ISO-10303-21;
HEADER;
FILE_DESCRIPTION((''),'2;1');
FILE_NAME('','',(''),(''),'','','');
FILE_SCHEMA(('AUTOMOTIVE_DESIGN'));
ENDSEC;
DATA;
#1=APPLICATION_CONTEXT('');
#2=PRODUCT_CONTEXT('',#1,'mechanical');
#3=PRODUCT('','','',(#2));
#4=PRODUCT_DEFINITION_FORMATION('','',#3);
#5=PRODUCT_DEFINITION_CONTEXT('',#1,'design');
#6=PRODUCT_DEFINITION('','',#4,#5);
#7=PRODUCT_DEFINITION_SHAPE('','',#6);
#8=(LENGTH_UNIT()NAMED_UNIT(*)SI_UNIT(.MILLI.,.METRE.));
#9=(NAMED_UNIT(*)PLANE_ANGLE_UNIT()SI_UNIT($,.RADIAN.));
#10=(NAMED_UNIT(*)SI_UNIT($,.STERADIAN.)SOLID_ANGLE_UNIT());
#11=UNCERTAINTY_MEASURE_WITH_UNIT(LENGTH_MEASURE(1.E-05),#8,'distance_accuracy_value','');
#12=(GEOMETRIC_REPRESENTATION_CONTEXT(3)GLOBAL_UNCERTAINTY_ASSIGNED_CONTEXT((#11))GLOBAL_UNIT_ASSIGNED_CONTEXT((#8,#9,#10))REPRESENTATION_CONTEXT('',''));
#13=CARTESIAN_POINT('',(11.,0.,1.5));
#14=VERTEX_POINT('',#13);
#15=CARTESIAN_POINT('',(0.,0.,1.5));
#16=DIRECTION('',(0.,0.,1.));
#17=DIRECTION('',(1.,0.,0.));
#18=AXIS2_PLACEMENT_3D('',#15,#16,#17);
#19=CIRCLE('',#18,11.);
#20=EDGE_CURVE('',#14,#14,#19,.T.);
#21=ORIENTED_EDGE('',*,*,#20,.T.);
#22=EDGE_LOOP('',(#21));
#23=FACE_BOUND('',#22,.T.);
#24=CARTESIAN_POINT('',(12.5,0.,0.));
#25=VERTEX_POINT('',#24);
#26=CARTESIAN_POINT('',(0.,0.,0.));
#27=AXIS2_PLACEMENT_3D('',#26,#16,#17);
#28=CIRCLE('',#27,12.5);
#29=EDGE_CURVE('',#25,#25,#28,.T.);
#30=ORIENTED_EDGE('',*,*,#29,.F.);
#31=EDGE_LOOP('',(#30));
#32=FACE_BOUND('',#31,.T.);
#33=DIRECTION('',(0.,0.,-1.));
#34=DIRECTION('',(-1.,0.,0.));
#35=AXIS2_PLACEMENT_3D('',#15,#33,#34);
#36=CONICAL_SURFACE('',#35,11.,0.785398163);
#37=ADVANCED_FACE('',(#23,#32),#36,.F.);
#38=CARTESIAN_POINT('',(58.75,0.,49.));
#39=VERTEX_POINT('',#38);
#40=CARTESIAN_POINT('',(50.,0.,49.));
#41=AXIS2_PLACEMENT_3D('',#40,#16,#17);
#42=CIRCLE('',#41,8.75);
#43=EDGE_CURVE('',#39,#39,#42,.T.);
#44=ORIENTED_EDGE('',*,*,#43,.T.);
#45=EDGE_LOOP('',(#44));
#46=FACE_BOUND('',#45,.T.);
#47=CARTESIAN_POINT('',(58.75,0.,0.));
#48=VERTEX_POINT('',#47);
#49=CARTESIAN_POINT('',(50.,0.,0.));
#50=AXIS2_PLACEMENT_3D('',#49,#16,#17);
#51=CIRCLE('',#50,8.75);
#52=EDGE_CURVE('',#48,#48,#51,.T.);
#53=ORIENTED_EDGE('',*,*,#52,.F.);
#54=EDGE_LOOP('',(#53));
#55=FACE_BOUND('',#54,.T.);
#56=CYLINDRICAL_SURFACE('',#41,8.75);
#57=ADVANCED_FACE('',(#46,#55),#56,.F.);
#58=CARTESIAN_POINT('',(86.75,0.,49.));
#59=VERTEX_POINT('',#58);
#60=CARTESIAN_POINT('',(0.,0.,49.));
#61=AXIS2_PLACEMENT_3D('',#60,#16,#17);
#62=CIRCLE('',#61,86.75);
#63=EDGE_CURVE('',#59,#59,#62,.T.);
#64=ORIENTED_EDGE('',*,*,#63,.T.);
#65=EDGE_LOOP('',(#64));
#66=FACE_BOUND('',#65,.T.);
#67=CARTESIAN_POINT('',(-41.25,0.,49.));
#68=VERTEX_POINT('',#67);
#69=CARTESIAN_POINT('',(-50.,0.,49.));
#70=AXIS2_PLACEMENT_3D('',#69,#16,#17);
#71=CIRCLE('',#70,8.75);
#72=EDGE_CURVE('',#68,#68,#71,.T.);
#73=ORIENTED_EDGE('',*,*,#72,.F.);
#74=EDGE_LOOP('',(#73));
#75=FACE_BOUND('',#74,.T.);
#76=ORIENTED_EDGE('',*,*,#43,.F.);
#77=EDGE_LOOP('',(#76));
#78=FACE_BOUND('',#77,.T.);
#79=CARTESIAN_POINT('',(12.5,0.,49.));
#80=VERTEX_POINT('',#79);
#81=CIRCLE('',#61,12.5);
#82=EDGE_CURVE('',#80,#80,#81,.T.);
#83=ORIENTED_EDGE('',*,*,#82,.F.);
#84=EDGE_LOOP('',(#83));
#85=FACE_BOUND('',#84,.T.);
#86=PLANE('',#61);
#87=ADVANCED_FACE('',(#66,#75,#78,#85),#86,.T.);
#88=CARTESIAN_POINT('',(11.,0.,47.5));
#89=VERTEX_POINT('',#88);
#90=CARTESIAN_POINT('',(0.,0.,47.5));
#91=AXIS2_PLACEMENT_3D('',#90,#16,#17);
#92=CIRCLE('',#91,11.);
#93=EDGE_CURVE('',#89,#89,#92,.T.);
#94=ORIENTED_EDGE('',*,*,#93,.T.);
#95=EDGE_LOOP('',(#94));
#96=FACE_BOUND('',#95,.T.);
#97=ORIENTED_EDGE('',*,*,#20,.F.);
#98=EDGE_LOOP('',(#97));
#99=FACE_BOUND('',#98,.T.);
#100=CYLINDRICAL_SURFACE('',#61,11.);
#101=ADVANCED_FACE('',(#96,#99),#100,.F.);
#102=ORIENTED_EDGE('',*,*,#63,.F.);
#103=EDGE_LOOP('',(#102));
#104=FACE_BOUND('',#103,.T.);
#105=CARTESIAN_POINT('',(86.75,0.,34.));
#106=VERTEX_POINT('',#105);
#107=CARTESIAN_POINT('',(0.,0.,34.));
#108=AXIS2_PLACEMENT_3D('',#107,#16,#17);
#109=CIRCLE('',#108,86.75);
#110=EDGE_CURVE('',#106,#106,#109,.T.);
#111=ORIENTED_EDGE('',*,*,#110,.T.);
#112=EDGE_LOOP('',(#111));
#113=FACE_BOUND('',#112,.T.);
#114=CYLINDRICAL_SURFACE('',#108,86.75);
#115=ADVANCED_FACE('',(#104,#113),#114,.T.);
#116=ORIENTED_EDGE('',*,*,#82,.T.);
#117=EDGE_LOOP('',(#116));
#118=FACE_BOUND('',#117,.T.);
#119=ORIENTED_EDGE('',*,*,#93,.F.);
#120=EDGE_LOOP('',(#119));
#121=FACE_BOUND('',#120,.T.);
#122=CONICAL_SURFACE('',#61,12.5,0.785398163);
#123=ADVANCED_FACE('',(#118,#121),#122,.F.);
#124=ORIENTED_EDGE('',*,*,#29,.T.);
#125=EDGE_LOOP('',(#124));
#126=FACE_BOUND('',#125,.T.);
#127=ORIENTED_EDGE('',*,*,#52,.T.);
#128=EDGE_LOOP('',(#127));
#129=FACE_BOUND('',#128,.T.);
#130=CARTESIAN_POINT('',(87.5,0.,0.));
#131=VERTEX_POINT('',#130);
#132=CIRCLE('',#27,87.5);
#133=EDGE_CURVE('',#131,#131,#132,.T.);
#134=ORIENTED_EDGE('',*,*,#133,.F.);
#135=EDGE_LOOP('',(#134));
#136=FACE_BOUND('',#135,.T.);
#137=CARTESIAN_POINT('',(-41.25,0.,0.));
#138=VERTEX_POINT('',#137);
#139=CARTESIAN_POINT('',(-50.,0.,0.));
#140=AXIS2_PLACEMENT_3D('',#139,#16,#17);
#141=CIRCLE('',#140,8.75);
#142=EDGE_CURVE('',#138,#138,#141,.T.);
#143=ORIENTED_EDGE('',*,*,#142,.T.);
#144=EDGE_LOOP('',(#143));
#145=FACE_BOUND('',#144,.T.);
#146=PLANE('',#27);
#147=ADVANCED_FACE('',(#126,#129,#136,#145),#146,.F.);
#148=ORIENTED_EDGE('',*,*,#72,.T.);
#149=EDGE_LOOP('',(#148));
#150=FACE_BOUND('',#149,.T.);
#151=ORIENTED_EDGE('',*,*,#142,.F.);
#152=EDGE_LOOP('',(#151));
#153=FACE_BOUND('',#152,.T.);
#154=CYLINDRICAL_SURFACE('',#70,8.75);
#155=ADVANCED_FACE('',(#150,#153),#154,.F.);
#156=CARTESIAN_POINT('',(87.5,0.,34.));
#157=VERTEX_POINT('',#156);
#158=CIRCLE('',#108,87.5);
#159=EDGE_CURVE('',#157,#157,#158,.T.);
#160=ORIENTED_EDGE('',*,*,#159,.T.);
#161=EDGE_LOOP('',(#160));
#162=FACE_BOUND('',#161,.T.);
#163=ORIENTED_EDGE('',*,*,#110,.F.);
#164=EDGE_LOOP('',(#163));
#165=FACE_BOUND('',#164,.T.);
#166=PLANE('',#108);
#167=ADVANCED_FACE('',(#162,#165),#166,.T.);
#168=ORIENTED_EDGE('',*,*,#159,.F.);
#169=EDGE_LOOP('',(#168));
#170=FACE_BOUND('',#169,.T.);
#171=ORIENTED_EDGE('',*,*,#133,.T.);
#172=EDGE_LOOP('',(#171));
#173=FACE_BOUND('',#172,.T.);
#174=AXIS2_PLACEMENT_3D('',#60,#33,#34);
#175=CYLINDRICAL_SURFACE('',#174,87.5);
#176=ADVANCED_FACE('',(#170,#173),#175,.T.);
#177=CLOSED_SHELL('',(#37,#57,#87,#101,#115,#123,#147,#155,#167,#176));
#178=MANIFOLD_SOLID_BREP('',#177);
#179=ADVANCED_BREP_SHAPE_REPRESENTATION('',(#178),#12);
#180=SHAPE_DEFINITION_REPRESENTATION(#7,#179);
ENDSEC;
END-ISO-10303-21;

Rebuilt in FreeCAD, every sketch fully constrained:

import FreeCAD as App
import Part
import Sketcher

doc = App.newDocument("Part")
body = doc.addObject("PartDesign::Body", "Body")

# Sketch on XY plane
sketch1 = body.newObject("Sketcher::SketchObject", "Sketch")
sketch1.AttachmentSupport = (doc.getObject("XY_Plane"), [""])
sketch1.MapMode = "FlatFace"
sketch1.addGeometry(Part.Circle(App.Vector(0, 0, 0), App.Vector(0, 0, 1), 88), False)
sketch1.addConstraint([
    Sketcher.Constraint("Coincident", 0, 3, -1, 1),
    Sketcher.Constraint("Diameter", 0, 175.0),
])
pad1 = body.newObject("PartDesign::Pad", "Pad")
pad1.Profile = sketch1
pad1.Length = 49

# Sketch on XY plane
sketch2 = body.newObject("Sketcher::SketchObject", "Sketch001")
sketch2.AttachmentSupport = (doc.getObject("XY_Plane"), [""])
sketch2.MapMode = "FlatFace"
sketch2.AttachmentOffset = App.Placement(App.Vector(0, 0, 34), App.Rotation())
sketch2.addGeometry([
    Part.Circle(App.Vector(0, 0, 0), App.Vector(0, 0, 1), 88),
    Part.Circle(App.Vector(0, 0, 0), App.Vector(0, 0, 1), 87),
], False)
sketch2.addConstraint([
    Sketcher.Constraint("Coincident", 0, 3, -1, 1),
    Sketcher.Constraint("Coincident", 1, 3, -1, 1),
    Sketcher.Constraint("Diameter", 0, 175.0),
    Sketcher.Constraint("Diameter", 1, 173.5),
])
pocket1 = body.newObject("PartDesign::Pocket", "Pocket")
pocket1.Profile = sketch2
pocket1.Length = 15
pocket1.Reversed = True

# Sketch on XY plane
sketch3 = body.newObject("Sketcher::SketchObject", "Sketch002")
sketch3.AttachmentSupport = (doc.getObject("XY_Plane"), [""])
sketch3.MapMode = "FlatFace"
sketch3.AttachmentOffset = App.Placement(App.Vector(0, 0, 49), App.Rotation())
sketch3.addGeometry([
    Part.Circle(App.Vector(-50, 0, 0), App.Vector(0, 0, 1), 9),
    Part.Circle(App.Vector(50, 0, 0), App.Vector(0, 0, 1), 9),
], False)
sketch3.addConstraint([
    Sketcher.Constraint("Equal", 0, 1),
    Sketcher.Constraint("Symmetric", 0, 3, 1, 3, -1, 1),
    Sketcher.Constraint("PointOnObject", 0, 3, -1),
    Sketcher.Constraint("Diameter", 0, 17.5),
    Sketcher.Constraint("DistanceX", 0, 3, -1, 1, 50.0),
])
doc.recompute()
hole = body.newObject("PartDesign::Hole", "Hole")
hole.Profile = sketch3
hole.ThreadType = "None"
hole.Diameter = 17.5
hole.DepthType = "ThroughAll"

# Sketch on YZ plane
sketch4 = body.newObject("Sketcher::SketchObject", "Sketch003")
sketch4.AttachmentSupport = (doc.getObject("YZ_Plane"), [""])
sketch4.MapMode = "FlatFace"
sketch4.addGeometry([
    Part.LineSegment(App.Vector(0, 0, 0), App.Vector(0, 49, 0)),  # 0
    Part.LineSegment(App.Vector(0, 49, 0), App.Vector(-12.5, 49, 0)),  # 1
    Part.LineSegment(App.Vector(-12.5, 49, 0), App.Vector(-11, 47.5, 0)),  # 2
    Part.LineSegment(App.Vector(-11, 47.5, 0), App.Vector(-11, 1.5, 0)),  # 3
    Part.LineSegment(App.Vector(-11, 1.5, 0), App.Vector(-12.5, 0, 0)),  # 4
    Part.LineSegment(App.Vector(-12.5, 0, 0), App.Vector(0, 0, 0)),  # 5
], False)
sketch4.addConstraint([
    Sketcher.Constraint("Coincident", 0, 2, 1, 1),
    Sketcher.Constraint("Coincident", 1, 2, 2, 1),
    Sketcher.Constraint("Coincident", 2, 2, 3, 1),
    Sketcher.Constraint("Coincident", 3, 2, 4, 1),
    Sketcher.Constraint("Coincident", 4, 2, 5, 1),
    Sketcher.Constraint("Coincident", 5, 2, 0, 1),
    Sketcher.Constraint("Vertical", 0),
    Sketcher.Constraint("Horizontal", 1),
    Sketcher.Constraint("Vertical", 3),
    Sketcher.Constraint("Horizontal", 5),
    Sketcher.Constraint("Coincident", 5, 2, -1, 1),
    Sketcher.Constraint("Perpendicular", 2, 4),
    Sketcher.Constraint("Vertical", 1, 2, 4, 2),
    Sketcher.Constraint("Equal", 2, 4),
    Sketcher.Constraint("DistanceY", 0, 1, 0, 2, 49.0),
    Sketcher.Constraint("DistanceY", 3, 2, 3, 1, 46.0),
    Sketcher.Constraint("DistanceX", 1, 2, 1, 1, 12.5),
])
groove = body.newObject("PartDesign::Groove", "Groove")
groove.Profile = sketch4
groove.ReferenceAxis = (sketch4, ["V_Axis"])
groove.Angle = 360

doc.recompute()
